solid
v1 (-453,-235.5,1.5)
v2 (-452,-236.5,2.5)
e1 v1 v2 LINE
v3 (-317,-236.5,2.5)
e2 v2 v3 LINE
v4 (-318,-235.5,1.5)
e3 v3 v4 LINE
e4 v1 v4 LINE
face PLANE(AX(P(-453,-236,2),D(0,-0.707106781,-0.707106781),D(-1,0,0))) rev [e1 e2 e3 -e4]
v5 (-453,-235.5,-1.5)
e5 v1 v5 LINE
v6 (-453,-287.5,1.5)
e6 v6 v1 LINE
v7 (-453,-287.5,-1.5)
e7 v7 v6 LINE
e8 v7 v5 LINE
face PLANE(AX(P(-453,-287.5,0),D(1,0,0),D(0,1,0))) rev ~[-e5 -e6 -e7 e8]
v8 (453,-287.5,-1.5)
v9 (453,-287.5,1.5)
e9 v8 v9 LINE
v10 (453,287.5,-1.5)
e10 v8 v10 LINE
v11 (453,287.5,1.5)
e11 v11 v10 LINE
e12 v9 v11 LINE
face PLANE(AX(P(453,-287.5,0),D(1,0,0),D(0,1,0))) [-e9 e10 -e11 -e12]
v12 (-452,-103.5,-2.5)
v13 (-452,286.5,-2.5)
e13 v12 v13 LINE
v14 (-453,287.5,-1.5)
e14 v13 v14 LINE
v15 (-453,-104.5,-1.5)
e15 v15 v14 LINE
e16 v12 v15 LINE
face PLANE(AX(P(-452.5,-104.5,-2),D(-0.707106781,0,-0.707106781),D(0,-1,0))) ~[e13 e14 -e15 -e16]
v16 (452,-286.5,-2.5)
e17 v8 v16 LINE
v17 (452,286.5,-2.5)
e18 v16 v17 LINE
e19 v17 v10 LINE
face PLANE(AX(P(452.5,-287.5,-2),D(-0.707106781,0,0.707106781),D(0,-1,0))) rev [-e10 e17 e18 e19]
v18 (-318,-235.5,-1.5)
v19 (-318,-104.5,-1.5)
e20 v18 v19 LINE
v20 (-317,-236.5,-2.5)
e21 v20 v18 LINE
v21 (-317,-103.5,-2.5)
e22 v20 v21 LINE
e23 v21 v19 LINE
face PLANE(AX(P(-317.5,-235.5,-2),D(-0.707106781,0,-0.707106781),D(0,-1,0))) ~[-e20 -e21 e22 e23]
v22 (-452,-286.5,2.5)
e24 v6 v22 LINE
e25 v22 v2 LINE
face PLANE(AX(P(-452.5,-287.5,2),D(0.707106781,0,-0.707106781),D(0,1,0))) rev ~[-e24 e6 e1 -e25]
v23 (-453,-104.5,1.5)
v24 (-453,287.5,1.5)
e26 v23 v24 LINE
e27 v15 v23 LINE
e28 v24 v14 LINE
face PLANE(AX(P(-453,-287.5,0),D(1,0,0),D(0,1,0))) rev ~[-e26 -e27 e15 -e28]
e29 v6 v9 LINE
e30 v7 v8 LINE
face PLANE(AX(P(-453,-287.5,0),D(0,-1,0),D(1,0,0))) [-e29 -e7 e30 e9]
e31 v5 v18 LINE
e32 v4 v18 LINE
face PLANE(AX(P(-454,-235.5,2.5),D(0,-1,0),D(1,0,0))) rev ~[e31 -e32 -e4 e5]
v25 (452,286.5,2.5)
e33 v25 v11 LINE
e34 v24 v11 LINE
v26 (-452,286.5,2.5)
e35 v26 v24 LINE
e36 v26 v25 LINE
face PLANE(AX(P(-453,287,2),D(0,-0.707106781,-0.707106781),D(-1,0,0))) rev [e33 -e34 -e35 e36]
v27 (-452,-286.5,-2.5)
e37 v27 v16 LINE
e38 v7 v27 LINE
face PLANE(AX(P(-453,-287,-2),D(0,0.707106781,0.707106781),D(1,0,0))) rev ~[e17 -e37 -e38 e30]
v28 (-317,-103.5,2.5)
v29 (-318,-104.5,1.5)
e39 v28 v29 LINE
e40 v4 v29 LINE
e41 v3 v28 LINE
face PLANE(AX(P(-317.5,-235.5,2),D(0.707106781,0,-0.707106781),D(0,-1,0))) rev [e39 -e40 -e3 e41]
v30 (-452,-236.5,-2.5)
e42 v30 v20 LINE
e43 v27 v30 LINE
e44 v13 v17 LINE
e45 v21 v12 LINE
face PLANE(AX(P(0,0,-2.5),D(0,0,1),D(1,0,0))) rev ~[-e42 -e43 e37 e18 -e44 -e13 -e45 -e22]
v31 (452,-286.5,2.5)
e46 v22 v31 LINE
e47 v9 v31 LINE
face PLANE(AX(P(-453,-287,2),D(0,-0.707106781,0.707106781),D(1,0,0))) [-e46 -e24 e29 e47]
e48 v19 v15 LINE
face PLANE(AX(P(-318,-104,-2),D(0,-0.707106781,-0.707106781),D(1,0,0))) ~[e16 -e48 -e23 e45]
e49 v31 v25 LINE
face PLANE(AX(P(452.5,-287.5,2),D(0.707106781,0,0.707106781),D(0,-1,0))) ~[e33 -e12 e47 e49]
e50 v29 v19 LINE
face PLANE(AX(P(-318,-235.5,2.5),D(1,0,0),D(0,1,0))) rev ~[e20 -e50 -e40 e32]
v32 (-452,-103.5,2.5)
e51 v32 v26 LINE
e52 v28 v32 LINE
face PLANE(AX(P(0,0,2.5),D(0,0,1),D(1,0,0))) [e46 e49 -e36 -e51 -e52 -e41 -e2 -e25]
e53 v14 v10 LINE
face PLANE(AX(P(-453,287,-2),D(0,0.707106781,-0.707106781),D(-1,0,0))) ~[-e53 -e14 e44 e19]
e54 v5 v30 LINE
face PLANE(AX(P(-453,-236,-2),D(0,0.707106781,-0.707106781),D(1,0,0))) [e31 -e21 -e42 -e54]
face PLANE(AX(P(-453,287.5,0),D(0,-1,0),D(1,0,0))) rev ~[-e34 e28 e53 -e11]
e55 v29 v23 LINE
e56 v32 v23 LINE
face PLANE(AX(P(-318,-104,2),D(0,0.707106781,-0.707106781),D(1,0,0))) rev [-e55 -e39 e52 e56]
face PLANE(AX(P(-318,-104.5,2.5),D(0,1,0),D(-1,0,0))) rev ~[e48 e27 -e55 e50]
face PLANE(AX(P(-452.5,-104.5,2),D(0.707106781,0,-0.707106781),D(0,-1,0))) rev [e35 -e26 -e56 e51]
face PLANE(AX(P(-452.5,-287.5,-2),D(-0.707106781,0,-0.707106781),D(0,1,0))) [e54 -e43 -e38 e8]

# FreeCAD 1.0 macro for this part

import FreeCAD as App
import Part
import Sketcher
from FreeCAD import Vector
Q = App.Units.Quantity


def edges_at(feature, points):
    """Names of the edges that pass closest to the given points."""
    edges = feature.Shape.Edges
    near = lambda p: min(range(len(edges)), key=lambda i: edges[i].distToShape(Part.Vertex(*p))[0])
    return sorted({f"Edge{near(p) + 1}" for p in points})


def add_polygon(sketch, points):
    """Adds a closed chain of lines whose ends are joined by coincident constraints."""
    first, n = sketch.GeometryCount, len(points)
    for a, b in zip(points, points[1:] + points[:1]):
        sketch.addGeometry(Part.LineSegment(App.Vector(*a, 0), App.Vector(*b, 0)), False)
    for i in range(n):
        sketch.addConstraint(Sketcher.Constraint("Coincident", first + i, 2, first + (i + 1) % n, 1))

doc = App.newDocument("Part")
params = doc.addObject("Spreadsheet::Sheet", "Params")
for row, (alias, value) in enumerate([
    ("sketch1_width", "906 mm"),
    ("sketch1_height", "575 mm"),
    ("pad1_length", "5 mm"),
    ("sketch2_width", "136 mm"),
    ("sketch2_height", "131 mm"),
    ("chamfer_size", "1 mm"),
], start=1):
    params.set(f"A{row}", alias)
    params.set(f"B{row}", "=" + value)
    params.setAlias(f"B{row}", alias)

body = doc.addObject("PartDesign::Body", "Body")

# Sketch on XY plane
sketch1 = doc.addObject("Sketcher::SketchObject", "Sketch")
body.addObject(sketch1)
sketch1.AttachmentSupport = (doc.XY_Plane, [""])
sketch1.MapMode = "FlatFace"
add_polygon(sketch1, [(-453, 288), (-453, -288), (453, -288), (453, 288)])  # lines 0-3
sketch1.addConstraint(Sketcher.Constraint("Vertical", 0))
sketch1.addConstraint(Sketcher.Constraint("Horizontal", 1))
sketch1.addConstraint(Sketcher.Constraint("Vertical", 2))
sketch1.addConstraint(Sketcher.Constraint("Horizontal", 3))
sketch1.addConstraint(Sketcher.Constraint("Symmetric", 0, 2, 2, 2, -1, 1))
sketch1.addConstraint(Sketcher.Constraint("DistanceX", 1, 1, 1, 2, Q("906 mm")))
sketch1.addConstraint(Sketcher.Constraint("DistanceY", 0, 2, 0, 1, Q("575 mm")))
sketch1.setExpression("Constraints[9]", "Params.sketch1_width")
sketch1.setExpression("Constraints[10]", "Params.sketch1_height")
pad1 = doc.addObject("PartDesign::Pad", "Pad")
body.addObject(pad1)
pad1.Profile = sketch1
pad1.setExpression("Length", "Params.pad1_length")
pad1.Midplane = True

# Sketch on XY plane
sketch2 = doc.addObject("Sketcher::SketchObject", "Sketch001")
body.addObject(sketch2)
sketch2.AttachmentSupport = (doc.XY_Plane, [""])
sketch2.MapMode = "FlatFace"
sketch2.AttachmentOffset = App.Placement(Vector(0, 0, 2.5), App.Rotation())
add_polygon(sketch2, [(-454, -104), (-454, -236), (-318, -236), (-318, -104)])  # lines 0-3
sketch2.addConstraint(Sketcher.Constraint("Vertical", 0))
sketch2.addConstraint(Sketcher.Constraint("Horizontal", 1))
sketch2.addConstraint(Sketcher.Constraint("Vertical", 2))
sketch2.addConstraint(Sketcher.Constraint("Horizontal", 3))
sketch2.addConstraint(Sketcher.Constraint("DistanceX", 1, 1, 1, 2, Q("136 mm")))
sketch2.addConstraint(Sketcher.Constraint("DistanceY", 0, 2, 0, 1, Q("131 mm")))
sketch2.addConstraint(Sketcher.Constraint("DistanceX", 0, 2, -1, 1, Q("454 mm")))
sketch2.addConstraint(Sketcher.Constraint("DistanceY", 0, 2, -1, 1, Q("235.5 mm")))
sketch2.setExpression("Constraints[8]", "Params.sketch2_width")
sketch2.setExpression("Constraints[9]", "Params.sketch2_height")
pocket1 = doc.addObject("PartDesign::Pocket", "Pocket")
body.addObject(pocket1)
pocket1.Profile = sketch2
pocket1.Type = "ThroughAll"
doc.recompute()

chamfer = doc.addObject("PartDesign::Chamfer", "Chamfer")
body.addObject(chamfer)
chamfer.Base = (pocket1, edges_at(pocket1, [
    (-453, 91.5, 2.5),
    (-453, 91.5, -2.5),
    (-453, -261.5, -2.5),
    (-453, -261.5, 2.5),
    (0, -287.5, -2.5),
    (0, -287.5, 2.5),
    (453, 0, 2.5),
    (453, 0, -2.5),
    (0, 287.5, 2.5),
    (0, 287.5, -2.5),
    (-385.5, -104.5, 2.5),
    (-385.5, -104.5, -2.5),
    (-318, -170, -2.5),
    (-318, -170, 2.5),
    (-385.5, -235.5, 2.5),
    (-385.5, -235.5, -2.5),
]))
chamfer.setExpression("Size", "Params.chamfer_size")

doc.recompute()
